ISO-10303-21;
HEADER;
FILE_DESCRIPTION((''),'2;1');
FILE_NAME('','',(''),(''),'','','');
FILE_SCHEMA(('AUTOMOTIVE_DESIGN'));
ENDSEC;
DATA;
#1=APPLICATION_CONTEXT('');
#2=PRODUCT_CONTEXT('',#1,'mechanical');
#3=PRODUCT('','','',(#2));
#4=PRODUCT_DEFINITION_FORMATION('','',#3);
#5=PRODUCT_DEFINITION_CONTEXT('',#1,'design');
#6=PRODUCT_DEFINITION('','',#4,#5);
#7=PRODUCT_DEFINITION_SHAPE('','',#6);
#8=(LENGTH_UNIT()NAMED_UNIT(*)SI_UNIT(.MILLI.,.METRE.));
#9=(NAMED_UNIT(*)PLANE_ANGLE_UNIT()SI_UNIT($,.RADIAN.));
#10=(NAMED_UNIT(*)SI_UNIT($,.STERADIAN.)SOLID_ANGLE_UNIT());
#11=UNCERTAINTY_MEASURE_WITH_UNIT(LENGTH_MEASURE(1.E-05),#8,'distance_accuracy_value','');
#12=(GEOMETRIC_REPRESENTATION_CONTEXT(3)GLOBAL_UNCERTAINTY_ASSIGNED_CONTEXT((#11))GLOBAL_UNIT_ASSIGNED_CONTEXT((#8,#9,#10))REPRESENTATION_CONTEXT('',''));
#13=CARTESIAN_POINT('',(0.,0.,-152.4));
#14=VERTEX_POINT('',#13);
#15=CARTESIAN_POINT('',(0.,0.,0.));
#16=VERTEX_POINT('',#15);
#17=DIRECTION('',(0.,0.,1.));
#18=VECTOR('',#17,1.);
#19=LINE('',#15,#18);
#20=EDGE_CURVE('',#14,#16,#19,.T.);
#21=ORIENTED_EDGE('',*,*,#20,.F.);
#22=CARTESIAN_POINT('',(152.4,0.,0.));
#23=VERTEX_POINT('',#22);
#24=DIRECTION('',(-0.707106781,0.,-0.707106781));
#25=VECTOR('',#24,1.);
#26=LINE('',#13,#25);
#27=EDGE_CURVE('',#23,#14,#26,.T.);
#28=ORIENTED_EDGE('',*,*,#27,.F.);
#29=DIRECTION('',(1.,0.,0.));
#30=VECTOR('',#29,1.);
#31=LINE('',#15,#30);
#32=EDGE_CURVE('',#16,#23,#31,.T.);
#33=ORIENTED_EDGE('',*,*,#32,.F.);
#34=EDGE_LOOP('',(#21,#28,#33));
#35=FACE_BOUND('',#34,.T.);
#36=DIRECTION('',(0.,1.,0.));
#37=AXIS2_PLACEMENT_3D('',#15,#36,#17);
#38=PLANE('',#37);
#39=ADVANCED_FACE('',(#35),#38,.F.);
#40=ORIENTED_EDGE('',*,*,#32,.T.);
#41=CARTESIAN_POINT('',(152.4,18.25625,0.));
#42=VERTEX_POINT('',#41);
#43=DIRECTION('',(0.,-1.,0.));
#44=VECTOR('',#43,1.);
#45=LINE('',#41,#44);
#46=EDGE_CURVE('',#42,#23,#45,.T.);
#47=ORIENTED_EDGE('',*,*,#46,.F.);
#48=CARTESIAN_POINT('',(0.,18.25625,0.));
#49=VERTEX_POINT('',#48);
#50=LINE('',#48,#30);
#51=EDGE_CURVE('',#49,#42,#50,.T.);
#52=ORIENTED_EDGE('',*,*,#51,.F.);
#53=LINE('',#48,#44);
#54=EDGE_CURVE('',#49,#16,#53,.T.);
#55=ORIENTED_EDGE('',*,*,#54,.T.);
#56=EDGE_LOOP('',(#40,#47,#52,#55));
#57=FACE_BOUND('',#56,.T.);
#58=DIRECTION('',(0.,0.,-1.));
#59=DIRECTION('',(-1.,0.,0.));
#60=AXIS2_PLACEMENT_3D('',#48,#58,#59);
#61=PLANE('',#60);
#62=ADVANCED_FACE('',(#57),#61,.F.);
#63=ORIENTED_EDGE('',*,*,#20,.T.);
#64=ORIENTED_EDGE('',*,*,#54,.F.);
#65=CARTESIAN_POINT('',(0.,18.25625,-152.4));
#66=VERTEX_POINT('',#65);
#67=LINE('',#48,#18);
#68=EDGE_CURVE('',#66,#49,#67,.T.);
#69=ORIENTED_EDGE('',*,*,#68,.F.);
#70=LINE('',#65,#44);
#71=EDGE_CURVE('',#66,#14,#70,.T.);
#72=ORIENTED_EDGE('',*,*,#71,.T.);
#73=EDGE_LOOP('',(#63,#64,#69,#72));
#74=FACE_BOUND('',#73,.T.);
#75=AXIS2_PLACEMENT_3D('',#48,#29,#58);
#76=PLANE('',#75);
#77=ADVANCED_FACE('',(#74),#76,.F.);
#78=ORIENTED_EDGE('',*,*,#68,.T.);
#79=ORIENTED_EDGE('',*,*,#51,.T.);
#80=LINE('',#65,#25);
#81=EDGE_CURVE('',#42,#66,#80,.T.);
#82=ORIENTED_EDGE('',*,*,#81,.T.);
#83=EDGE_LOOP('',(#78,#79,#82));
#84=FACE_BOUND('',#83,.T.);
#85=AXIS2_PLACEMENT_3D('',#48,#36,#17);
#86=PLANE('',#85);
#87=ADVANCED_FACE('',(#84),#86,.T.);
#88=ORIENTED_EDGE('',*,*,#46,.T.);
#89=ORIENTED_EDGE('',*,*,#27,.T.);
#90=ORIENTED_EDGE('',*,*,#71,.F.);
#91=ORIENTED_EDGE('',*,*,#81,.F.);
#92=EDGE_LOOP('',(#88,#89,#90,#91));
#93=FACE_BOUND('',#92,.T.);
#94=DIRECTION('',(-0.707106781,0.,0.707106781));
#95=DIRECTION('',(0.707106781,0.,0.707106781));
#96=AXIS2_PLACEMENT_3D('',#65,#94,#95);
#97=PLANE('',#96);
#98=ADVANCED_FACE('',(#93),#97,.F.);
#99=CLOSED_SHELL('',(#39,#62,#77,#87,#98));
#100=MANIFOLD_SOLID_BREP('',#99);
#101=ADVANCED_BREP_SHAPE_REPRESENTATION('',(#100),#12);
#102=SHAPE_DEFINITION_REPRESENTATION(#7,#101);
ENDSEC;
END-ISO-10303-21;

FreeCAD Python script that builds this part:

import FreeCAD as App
import Part
import Sketcher
from FreeCAD import Vector
Q = App.Units.Quantity

doc = App.newDocument("Part")
body = doc.addObject("PartDesign::Body", "Body")

# Sketch on XZ plane
sketch1 = body.newObject("Sketcher::SketchObject", "Sketch")
sketch1.AttachmentSupport = (doc.getObject("XZ_Plane"), [""])
sketch1.MapMode = "FlatFace"
sketch1.addGeometry([
    Part.LineSegment(Vector(0, -152, 0), Vector(0, 0, 0)),
    Part.LineSegment(Vector(0, 0, 0), Vector(152, 0, 0)),
    Part.LineSegment(Vector(152, 0, 0), Vector(0, -152, 0)),
], False)
sketch1.addConstraint([
    Sketcher.Constraint("Coincident", 0, 2, 1, 1),
    Sketcher.Constraint("Coincident", 1, 2, 2, 1),
    Sketcher.Constraint("Coincident", 2, 2, 0, 1),
    Sketcher.Constraint("Vertical", 0),
    Sketcher.Constraint("Horizontal", 1),
    Sketcher.Constraint("Coincident", 0, 2, -1, 1),
    Sketcher.Constraint("Equal", 1, 0),
    Sketcher.Constraint("DistanceX", 1, 1, 1, 2, Q("6 in")),
])
pad1 = body.newObject("PartDesign::Pad", "Pad")
pad1.Profile = sketch1
pad1.Length = Q("0.71875 in")
pad1.Reversed = True

doc.recompute()
